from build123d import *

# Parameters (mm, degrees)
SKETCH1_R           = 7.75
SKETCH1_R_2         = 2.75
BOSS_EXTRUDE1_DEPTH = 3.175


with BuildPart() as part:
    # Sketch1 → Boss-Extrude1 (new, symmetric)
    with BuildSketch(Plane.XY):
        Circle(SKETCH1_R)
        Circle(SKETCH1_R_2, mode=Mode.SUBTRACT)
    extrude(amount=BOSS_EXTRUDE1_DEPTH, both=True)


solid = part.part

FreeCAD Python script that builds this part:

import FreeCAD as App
import Part
import Sketcher

doc = App.newDocument("Part")
body = doc.addObject("PartDesign::Body", "Body")

sketch1 = doc.addObject("Sketcher::SketchObject", "Sketch")
body.addObject(sketch1)
sketch1.AttachmentSupport = (doc.XY_Plane, [""])
sketch1.MapMode = "FlatFace"
sketch1.addGeometry([
    Part.Circle(App.Vector(0, 0, 0), App.Vector(0, 0, 1), 7.75),
    Part.Circle(App.Vector(0, 0, 0), App.Vector(0, 0, 1), 2.75),
], False)
sketch1.addConstraint([
    Sketcher.Constraint("Coincident", 0, 3, -1, 1),
    Sketcher.Constraint("Coincident", 1, 3, -1, 1),
    Sketcher.Constraint("Diameter", 0, 15.5),
    Sketcher.Constraint("Diameter", 1, 5.5),
])
pad1 = doc.addObject("PartDesign::Pad", "Pad")
body.addObject(pad1)
pad1.Profile = sketch1
pad1.Length = 6.35
pad1.Midplane = True

doc.recompute()
